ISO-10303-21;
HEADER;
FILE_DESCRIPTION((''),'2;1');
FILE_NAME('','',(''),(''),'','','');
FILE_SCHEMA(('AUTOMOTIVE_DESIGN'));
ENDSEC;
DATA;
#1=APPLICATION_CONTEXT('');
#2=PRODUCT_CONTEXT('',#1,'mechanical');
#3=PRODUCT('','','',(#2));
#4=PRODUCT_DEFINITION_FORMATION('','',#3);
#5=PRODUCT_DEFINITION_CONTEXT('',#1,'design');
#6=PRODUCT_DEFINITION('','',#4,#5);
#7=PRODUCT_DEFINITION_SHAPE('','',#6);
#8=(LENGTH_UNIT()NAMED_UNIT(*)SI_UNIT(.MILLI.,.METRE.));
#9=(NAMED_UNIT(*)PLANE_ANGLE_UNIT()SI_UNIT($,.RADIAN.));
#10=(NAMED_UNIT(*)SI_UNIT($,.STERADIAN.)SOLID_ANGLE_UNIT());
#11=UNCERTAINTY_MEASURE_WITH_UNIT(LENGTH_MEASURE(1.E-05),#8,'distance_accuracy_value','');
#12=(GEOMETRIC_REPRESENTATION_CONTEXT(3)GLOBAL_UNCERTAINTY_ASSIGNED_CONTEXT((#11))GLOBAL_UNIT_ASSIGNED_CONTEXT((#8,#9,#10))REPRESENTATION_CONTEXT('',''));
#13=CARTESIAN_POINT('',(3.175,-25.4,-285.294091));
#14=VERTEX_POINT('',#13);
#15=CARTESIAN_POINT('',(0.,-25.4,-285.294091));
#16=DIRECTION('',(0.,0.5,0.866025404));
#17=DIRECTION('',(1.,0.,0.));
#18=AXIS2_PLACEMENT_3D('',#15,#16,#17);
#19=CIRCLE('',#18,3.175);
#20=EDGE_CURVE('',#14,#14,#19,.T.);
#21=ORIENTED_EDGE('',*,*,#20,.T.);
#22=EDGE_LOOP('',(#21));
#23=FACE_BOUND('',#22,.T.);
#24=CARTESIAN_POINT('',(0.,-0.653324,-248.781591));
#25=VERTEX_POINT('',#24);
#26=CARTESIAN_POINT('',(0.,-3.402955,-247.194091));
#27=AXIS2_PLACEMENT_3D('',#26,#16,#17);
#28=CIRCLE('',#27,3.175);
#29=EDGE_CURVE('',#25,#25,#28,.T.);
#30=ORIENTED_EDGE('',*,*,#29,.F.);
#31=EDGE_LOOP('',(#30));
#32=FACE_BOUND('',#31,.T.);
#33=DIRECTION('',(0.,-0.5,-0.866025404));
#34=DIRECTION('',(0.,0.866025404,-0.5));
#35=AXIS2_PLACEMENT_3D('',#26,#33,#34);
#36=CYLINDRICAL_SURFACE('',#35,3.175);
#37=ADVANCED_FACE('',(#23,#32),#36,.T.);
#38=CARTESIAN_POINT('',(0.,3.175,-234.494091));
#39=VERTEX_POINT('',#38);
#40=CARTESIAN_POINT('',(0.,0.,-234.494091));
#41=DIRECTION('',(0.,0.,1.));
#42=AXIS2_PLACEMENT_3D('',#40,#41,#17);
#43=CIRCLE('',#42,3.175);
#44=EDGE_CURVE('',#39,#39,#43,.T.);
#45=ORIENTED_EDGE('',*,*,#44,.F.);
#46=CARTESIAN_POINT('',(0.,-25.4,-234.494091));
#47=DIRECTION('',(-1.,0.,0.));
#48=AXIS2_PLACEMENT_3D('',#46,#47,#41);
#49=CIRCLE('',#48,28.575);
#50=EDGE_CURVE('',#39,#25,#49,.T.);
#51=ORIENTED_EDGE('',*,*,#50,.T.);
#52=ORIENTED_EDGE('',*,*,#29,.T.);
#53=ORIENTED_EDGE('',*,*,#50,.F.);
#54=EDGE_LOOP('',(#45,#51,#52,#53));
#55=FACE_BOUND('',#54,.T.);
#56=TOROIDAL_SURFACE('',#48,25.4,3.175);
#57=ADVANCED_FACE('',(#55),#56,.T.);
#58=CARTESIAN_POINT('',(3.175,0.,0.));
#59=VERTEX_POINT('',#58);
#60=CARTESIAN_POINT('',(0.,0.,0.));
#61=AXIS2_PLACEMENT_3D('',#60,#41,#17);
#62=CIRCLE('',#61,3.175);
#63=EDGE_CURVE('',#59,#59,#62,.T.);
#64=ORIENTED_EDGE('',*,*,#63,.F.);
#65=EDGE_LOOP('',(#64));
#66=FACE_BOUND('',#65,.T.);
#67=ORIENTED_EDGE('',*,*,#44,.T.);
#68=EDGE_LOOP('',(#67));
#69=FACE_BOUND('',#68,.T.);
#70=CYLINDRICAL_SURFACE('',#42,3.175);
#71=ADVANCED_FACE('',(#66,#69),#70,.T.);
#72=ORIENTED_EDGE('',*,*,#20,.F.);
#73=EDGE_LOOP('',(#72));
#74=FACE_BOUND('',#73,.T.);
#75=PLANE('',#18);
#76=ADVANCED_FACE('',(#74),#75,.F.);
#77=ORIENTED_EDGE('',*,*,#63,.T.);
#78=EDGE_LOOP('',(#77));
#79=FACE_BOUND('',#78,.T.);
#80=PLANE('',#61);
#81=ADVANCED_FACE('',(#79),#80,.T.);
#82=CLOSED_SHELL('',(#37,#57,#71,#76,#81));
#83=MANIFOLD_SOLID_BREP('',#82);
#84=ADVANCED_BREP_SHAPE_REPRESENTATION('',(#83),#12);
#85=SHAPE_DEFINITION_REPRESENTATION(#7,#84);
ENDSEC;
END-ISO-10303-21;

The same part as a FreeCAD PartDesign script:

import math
import FreeCAD as App
import Part
import Sketcher
Q = App.Units.Quantity

doc = App.newDocument("Part")
body = doc.addObject("PartDesign::Body", "Body")

# Sketch on XY plane
sketch1 = doc.addObject("Sketcher::SketchObject", "Sketch")
body.addObject(sketch1)
sketch1.AttachmentSupport = (doc.XY_Plane, [""])
sketch1.MapMode = "FlatFace"
sketch1.addGeometry(Part.Circle(App.Vector(0, 0, 0), App.Vector(0, 0, 1), 3.2), False)
sketch1.addConstraint([
    Sketcher.Constraint("Coincident", 0, 3, -1, 1),
    Sketcher.Constraint("Diameter", 0, Q("0.25 in")),
])

# Sketch on YZ plane
sketch2 = doc.addObject("Sketcher::SketchObject", "Sketch001")
body.addObject(sketch2)
sketch2.AttachmentSupport = (doc.YZ_Plane, [""])
sketch2.MapMode = "FlatFace"
sketch2.addGeometry([
    Part.LineSegment(App.Vector(0, 0, 0), App.Vector(0, -234, 0)),
    Part.ArcOfCircle(Part.Circle(App.Vector(-25, -234, 0), App.Vector(0, 0, 1), 25), math.radians(-30), math.radians(0)),
    Part.LineSegment(App.Vector(-3, -247, 0), App.Vector(-25, -285, 0)),
], False)
sketch2.addConstraint([
    Sketcher.Constraint("Tangent", 0, 2, 1, 2),
    Sketcher.Constraint("Tangent", 1, 1, 2, 1),
    Sketcher.Constraint("Vertical", 0),
    Sketcher.Constraint("Coincident", 0, 1, -1, 1),
    Sketcher.Constraint("Vertical", 1, 3, 2, 2),
    Sketcher.Constraint("Radius", 1, Q("1 in")),
    Sketcher.Constraint("Angle", 2, Q("-120 deg")),
    Sketcher.Constraint("DistanceY", 0, 2, 0, 1, 234.494091),
])
doc.recompute()

additivepipe = doc.addObject("PartDesign::AdditivePipe", "AdditivePipe")
body.addObject(additivepipe)
additivepipe.Profile = sketch1
additivepipe.Spine = (sketch2, ["Edge1", "Edge2", "Edge3"])

doc.recompute()
